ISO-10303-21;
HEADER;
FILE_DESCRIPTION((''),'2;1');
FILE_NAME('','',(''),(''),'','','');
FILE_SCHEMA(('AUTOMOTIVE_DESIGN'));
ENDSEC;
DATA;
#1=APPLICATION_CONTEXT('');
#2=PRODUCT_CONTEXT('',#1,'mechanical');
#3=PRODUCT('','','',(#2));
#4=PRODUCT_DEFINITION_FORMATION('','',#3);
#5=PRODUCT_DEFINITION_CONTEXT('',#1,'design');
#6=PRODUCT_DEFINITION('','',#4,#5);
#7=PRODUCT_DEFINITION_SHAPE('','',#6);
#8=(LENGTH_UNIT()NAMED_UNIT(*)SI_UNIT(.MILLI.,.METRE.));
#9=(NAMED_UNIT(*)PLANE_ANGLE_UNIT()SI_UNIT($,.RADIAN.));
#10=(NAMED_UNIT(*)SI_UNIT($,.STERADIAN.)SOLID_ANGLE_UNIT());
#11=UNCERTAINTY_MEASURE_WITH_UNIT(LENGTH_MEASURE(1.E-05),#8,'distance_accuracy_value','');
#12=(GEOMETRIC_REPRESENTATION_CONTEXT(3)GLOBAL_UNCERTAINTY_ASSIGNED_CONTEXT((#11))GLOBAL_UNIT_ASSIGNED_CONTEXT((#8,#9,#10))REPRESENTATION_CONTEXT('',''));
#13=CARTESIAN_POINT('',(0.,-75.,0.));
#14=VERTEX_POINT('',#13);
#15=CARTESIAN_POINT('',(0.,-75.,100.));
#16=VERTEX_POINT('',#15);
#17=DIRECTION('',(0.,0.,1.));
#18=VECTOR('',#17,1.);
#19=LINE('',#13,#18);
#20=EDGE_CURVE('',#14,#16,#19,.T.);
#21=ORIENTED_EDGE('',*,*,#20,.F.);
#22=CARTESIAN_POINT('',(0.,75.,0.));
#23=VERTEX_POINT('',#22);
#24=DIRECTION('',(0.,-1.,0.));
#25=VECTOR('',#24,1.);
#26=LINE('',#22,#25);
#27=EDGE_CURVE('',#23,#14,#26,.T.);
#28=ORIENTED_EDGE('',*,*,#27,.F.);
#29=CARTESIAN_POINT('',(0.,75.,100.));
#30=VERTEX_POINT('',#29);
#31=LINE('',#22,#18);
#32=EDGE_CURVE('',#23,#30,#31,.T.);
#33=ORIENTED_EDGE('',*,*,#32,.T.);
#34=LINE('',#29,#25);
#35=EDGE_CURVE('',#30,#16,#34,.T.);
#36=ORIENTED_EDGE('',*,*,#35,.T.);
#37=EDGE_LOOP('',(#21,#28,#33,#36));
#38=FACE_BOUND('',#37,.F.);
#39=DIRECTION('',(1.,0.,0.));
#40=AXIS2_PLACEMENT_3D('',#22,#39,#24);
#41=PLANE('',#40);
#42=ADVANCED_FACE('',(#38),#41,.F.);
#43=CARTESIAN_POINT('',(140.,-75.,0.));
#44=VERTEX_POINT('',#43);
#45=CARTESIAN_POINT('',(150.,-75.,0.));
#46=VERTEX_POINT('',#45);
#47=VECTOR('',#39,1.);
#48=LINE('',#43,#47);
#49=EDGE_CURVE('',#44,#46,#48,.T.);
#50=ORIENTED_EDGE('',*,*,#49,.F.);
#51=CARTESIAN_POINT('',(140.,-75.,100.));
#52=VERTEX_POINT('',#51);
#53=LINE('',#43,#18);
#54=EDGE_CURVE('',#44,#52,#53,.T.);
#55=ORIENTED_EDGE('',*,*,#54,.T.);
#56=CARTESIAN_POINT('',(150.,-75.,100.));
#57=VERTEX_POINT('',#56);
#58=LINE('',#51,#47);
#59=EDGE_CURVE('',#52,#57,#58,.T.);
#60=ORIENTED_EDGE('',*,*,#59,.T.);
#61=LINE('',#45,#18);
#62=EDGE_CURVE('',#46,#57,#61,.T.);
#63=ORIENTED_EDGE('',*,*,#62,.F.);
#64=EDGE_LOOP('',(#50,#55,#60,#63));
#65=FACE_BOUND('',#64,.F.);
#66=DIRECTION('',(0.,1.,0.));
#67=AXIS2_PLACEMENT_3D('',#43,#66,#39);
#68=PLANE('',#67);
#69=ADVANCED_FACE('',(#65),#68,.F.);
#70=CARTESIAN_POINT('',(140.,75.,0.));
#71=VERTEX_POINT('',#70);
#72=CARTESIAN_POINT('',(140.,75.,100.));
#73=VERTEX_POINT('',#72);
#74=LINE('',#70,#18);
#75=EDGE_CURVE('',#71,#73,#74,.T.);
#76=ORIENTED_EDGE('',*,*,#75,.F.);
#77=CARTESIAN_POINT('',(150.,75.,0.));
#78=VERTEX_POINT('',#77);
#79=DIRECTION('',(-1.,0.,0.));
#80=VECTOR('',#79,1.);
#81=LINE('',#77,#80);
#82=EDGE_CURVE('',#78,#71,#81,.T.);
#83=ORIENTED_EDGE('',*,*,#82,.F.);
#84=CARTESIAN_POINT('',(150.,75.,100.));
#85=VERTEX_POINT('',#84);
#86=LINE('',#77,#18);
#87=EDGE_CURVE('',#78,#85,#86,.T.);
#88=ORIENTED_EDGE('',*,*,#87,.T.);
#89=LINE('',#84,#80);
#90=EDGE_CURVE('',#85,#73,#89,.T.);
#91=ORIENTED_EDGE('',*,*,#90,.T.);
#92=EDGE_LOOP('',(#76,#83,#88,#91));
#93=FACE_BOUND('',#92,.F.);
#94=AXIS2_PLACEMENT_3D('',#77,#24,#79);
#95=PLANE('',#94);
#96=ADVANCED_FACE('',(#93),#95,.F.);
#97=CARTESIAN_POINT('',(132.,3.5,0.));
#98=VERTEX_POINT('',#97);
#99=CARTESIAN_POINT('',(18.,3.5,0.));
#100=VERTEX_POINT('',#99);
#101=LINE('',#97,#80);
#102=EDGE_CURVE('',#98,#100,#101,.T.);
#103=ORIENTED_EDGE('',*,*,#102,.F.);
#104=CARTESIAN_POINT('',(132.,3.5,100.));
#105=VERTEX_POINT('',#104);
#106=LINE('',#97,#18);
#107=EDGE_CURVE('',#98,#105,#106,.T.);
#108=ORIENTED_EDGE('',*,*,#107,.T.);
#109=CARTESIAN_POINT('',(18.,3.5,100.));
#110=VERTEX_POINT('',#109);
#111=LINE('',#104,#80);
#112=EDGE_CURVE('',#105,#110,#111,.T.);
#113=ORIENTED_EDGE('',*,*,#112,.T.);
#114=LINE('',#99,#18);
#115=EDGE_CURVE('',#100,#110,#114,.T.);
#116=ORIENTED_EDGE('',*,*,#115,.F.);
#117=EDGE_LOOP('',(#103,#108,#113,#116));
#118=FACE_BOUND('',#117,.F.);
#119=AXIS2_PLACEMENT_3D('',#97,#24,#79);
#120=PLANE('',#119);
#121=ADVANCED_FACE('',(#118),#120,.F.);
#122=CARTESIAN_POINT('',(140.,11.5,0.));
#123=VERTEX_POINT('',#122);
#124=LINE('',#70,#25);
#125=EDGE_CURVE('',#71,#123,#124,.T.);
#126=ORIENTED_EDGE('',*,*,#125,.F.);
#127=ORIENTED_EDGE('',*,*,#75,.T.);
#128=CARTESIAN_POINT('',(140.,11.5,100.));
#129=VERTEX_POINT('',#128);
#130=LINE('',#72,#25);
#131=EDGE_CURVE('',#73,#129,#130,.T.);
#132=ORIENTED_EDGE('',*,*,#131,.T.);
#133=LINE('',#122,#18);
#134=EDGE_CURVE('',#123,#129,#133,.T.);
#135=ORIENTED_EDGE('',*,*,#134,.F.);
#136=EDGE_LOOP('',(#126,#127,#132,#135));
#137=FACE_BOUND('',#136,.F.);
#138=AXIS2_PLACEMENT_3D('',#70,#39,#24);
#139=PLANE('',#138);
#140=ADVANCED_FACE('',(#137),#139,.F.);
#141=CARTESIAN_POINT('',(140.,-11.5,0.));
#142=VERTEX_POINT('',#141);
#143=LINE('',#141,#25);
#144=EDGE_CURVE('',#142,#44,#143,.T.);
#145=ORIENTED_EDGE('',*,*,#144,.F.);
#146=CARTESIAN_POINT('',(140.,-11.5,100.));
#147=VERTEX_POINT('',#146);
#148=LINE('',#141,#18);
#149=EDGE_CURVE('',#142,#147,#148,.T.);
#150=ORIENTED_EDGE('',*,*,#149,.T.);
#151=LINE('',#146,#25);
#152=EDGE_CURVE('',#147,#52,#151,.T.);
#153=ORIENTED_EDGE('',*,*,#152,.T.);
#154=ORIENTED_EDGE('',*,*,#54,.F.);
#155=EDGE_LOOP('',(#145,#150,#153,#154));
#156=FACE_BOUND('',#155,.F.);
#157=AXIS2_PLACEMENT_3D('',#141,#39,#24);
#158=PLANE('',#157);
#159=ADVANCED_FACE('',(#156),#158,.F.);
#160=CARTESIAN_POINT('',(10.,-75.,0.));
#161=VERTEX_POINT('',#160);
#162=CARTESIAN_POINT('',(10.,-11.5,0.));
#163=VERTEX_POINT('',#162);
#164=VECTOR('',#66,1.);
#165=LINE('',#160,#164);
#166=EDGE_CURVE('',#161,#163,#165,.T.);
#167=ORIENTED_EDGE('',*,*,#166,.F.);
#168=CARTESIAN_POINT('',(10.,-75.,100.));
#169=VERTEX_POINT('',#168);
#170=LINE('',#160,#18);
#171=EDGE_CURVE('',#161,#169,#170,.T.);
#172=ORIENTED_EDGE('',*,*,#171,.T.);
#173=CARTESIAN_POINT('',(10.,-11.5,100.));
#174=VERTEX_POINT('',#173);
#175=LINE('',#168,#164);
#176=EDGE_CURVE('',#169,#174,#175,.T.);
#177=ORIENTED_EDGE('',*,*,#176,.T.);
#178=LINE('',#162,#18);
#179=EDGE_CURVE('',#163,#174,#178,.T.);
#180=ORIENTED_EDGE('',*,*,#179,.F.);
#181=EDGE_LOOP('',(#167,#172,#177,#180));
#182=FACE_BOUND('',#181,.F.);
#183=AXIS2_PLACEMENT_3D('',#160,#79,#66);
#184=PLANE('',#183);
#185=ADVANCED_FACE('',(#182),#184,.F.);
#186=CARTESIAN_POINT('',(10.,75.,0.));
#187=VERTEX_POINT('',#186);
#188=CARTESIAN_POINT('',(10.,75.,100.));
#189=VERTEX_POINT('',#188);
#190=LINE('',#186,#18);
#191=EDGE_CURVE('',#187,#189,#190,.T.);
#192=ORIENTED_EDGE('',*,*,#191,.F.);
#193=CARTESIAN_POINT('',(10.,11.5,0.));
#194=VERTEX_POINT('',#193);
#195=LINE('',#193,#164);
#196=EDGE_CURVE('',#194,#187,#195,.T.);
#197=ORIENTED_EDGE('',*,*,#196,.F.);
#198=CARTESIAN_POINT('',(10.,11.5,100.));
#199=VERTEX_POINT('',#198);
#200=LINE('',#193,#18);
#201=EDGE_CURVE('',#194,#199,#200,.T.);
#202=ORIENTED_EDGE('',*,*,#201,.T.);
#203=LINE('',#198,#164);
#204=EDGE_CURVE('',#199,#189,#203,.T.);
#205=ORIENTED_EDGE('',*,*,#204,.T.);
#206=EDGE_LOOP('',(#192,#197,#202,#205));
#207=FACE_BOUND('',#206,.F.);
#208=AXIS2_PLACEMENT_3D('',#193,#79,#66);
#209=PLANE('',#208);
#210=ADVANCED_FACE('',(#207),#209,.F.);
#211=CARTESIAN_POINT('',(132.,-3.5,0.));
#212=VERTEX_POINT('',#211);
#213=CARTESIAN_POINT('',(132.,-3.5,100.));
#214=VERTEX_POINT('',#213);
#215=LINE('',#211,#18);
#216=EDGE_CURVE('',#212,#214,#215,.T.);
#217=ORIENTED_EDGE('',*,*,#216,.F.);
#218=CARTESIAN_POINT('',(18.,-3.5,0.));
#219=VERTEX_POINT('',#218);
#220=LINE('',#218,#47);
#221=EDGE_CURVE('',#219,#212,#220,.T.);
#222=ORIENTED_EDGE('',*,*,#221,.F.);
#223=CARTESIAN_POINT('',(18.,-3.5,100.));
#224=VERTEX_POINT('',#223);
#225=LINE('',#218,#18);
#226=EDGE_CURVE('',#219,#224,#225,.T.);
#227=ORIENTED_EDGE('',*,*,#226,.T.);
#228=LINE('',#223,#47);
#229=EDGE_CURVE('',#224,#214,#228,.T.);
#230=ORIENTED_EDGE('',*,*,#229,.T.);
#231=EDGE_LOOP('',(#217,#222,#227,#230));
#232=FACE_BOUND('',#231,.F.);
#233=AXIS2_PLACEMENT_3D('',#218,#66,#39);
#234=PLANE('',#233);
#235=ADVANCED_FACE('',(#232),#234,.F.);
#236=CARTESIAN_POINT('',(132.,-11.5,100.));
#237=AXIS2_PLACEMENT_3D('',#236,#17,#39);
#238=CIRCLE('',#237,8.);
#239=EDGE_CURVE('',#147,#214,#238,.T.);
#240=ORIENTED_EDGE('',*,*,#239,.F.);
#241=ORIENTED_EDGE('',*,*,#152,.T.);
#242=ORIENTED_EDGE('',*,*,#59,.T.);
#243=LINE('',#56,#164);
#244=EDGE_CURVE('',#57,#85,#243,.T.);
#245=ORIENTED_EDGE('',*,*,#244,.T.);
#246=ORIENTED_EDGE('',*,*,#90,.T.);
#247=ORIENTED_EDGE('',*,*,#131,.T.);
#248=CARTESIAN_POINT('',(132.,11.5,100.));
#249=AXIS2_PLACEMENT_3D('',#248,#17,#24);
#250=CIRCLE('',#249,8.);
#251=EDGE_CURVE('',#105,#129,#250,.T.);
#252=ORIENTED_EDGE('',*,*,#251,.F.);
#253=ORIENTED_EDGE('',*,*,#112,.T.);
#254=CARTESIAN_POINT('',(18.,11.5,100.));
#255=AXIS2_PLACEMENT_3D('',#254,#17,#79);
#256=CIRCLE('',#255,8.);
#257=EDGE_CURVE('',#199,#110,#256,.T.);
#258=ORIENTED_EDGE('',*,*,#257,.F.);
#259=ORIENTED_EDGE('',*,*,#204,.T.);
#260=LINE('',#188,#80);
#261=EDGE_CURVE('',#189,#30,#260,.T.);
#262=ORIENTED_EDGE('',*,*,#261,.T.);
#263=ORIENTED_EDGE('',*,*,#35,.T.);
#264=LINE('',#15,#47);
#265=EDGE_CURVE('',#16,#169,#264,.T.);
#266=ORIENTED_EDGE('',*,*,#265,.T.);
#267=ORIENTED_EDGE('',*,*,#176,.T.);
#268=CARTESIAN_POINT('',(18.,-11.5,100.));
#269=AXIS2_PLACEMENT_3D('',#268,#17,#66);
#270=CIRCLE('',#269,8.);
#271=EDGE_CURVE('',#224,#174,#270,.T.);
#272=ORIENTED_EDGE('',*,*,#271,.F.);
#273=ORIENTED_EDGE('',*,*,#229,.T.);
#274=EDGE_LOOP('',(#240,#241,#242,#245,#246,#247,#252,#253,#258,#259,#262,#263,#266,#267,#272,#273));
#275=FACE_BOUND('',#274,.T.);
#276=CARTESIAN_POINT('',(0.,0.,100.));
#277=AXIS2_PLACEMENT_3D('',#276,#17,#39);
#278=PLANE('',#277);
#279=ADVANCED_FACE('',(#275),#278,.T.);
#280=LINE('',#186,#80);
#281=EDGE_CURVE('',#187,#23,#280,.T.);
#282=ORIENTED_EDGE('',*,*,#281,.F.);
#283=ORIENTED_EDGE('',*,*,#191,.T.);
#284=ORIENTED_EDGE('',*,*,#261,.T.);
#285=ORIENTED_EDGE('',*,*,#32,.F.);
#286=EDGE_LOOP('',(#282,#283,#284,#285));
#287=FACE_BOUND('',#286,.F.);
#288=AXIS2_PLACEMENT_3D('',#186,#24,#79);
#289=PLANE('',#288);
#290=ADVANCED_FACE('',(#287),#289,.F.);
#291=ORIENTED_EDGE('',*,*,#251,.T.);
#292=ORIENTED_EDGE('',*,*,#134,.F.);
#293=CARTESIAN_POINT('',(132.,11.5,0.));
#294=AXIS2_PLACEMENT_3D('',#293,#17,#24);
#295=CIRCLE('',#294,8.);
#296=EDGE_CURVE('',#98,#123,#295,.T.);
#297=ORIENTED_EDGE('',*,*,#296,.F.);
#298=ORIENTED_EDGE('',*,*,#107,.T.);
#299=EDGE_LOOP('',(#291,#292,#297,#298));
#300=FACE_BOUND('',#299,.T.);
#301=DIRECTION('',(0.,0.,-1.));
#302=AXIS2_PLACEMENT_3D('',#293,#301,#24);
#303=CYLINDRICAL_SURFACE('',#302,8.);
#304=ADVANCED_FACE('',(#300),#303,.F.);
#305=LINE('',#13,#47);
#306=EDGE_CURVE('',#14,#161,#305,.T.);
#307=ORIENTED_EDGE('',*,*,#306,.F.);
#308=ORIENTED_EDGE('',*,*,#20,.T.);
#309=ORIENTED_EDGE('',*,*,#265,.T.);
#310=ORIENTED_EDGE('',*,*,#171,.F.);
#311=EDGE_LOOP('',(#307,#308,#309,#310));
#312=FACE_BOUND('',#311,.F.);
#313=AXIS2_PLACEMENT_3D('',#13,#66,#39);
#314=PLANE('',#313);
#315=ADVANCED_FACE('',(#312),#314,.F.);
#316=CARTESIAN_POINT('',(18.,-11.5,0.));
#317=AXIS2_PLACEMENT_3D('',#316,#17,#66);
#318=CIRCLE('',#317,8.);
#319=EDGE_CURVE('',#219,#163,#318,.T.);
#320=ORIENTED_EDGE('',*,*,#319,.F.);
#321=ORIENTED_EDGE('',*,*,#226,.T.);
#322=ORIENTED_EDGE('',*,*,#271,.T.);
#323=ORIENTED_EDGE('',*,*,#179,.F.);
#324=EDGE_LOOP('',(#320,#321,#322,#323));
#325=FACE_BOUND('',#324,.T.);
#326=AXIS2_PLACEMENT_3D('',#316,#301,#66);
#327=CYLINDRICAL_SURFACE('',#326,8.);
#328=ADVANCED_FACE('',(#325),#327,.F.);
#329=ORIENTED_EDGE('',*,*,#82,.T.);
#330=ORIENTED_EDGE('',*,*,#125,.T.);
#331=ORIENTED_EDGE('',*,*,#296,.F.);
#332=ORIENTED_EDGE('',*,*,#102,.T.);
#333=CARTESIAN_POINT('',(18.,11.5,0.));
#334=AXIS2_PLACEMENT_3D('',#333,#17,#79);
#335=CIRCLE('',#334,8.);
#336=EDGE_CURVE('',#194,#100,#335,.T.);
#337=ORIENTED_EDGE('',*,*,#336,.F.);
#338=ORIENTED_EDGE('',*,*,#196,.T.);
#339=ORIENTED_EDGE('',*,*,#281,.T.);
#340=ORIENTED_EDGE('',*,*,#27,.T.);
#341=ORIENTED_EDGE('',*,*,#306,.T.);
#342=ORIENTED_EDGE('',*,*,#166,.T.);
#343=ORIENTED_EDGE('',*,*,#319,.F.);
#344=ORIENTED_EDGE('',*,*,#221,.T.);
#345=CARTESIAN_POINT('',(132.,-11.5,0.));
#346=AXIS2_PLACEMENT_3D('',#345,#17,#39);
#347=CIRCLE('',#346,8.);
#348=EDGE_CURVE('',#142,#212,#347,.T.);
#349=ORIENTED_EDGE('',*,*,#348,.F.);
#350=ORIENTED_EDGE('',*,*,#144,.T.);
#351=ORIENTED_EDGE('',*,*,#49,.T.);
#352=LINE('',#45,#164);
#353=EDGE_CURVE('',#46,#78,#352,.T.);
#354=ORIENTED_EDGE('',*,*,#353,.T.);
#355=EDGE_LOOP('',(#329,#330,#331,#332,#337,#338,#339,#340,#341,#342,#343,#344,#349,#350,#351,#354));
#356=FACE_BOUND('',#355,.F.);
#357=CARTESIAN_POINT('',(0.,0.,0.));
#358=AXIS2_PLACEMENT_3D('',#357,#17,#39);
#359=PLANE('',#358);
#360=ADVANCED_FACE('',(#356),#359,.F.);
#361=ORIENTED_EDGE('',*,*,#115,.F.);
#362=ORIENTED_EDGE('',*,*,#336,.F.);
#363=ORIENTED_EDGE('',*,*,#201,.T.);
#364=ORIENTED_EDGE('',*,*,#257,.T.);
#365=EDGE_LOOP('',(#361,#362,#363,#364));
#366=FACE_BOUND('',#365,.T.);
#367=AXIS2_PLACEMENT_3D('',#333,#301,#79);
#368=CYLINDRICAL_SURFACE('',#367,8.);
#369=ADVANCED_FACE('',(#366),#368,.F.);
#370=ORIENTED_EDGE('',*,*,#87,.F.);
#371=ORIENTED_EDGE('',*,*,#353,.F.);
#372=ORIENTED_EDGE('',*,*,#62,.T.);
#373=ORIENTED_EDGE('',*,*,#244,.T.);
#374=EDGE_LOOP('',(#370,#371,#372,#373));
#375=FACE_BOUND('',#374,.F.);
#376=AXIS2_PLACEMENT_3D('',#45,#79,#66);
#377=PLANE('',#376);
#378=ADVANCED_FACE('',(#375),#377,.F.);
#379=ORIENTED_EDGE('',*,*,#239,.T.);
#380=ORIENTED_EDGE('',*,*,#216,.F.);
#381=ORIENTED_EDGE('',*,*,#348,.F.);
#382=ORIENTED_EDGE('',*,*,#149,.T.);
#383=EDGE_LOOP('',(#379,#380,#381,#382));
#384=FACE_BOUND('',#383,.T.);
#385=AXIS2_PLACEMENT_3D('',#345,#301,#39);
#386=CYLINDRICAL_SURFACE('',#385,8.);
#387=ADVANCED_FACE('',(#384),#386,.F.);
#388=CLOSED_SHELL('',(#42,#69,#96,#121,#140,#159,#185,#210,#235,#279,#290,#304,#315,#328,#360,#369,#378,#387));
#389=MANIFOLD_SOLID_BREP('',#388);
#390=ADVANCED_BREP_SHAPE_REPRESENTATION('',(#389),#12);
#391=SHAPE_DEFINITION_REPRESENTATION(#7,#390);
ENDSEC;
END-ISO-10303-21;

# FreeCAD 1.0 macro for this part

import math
import FreeCAD as App
import Part
import Sketcher
Q = App.Units.Quantity

doc = App.newDocument("Part")
body = doc.addObject("PartDesign::Body", "Body")

sketch1 = doc.addObject("Sketcher::SketchObject", "Sketch")
body.addObject(sketch1)
sketch1.AttachmentSupport = (doc.XY_Plane, [""])
sketch1.MapMode = "FlatFace"
sketch1.addGeometry([
    Part.LineSegment(App.Vector(10, 75, 0), App.Vector(0, 75, 0)),
    Part.LineSegment(App.Vector(0, 75, 0), App.Vector(0, -75, 0)),
    Part.LineSegment(App.Vector(0, -75, 0), App.Vector(10, -75, 0)),
    Part.LineSegment(App.Vector(10, -75, 0), App.Vector(10, -11.5, 0)),
    Part.ArcOfCircle(Part.Circle(App.Vector(18, -11.5, 0), App.Vector(0, 0, 1), 8), math.radians(90), math.radians(180)),
    Part.LineSegment(App.Vector(18, -3.5, 0), App.Vector(132, -3.5, 0)),
    Part.ArcOfCircle(Part.Circle(App.Vector(132, -11.5, 0), App.Vector(0, 0, 1), 8), math.radians(0), math.radians(90)),
    Part.LineSegment(App.Vector(140, -11.5, 0), App.Vector(140, -75, 0)),
    Part.LineSegment(App.Vector(140, -75, 0), App.Vector(150, -75, 0)),
    Part.LineSegment(App.Vector(150, -75, 0), App.Vector(150, 75, 0)),
    Part.LineSegment(App.Vector(150, 75, 0), App.Vector(140, 75, 0)),
    Part.LineSegment(App.Vector(140, 75, 0), App.Vector(140, 11.5, 0)),
    Part.ArcOfCircle(Part.Circle(App.Vector(132, 11.5, 0), App.Vector(0, 0, 1), 8), math.radians(-90), math.radians(0)),
    Part.LineSegment(App.Vector(132, 3.5, 0), App.Vector(18, 3.5, 0)),
    Part.ArcOfCircle(Part.Circle(App.Vector(18, 11.5, 0), App.Vector(0, 0, 1), 8), math.radians(180), math.radians(270)),
    Part.LineSegment(App.Vector(10, 11.5, 0), App.Vector(10, 75, 0)),
], False)
sketch1.addConstraint([
    Sketcher.Constraint("Coincident", 0, 2, 1, 1),
    Sketcher.Constraint("Coincident", 1, 2, 2, 1),
    Sketcher.Constraint("Coincident", 2, 2, 3, 1),
    Sketcher.Constraint("Tangent", 3, 2, 4, 2),
    Sketcher.Constraint("Tangent", 4, 1, 5, 1),
    Sketcher.Constraint("Tangent", 5, 2, 6, 2),
    Sketcher.Constraint("Tangent", 6, 1, 7, 1),
    Sketcher.Constraint("Coincident", 7, 2, 8, 1),
    Sketcher.Constraint("Coincident", 8, 2, 9, 1),
    Sketcher.Constraint("Coincident", 9, 2, 10, 1),
    Sketcher.Constraint("Coincident", 10, 2, 11, 1),
    Sketcher.Constraint("Tangent", 11, 2, 12, 2),
    Sketcher.Constraint("Tangent", 12, 1, 13, 1),
    Sketcher.Constraint("Tangent", 13, 2, 14, 2),
    Sketcher.Constraint("Tangent", 14, 1, 15, 1),
    Sketcher.Constraint("Coincident", 15, 2, 0, 1),
    Sketcher.Constraint("Horizontal", 0),
    Sketcher.Constraint("Vertical", 1),
    Sketcher.Constraint("Horizontal", 2),
    Sketcher.Constraint("Vertical", 3),
    Sketcher.Constraint("Horizontal", 5),
    Sketcher.Constraint("Vertical", 7),
    Sketcher.Constraint("Horizontal", 8),
    Sketcher.Constraint("Vertical", 9),
    Sketcher.Constraint("Horizontal", 10),
    Sketcher.Constraint("Vertical", 11),
    Sketcher.Constraint("Horizontal", 13),
    Sketcher.Constraint("Vertical", 15),
    Sketcher.Constraint("Equal", 4, 6),
    Sketcher.Constraint("Equal", 6, 12),
    Sketcher.Constraint("Equal", 12, 14),
    Sketcher.Constraint("Symmetric", 0, 2, 1, 2, -1, 1),
    Sketcher.Constraint("Symmetric", 6, 3, 12, 3, -1),
    Sketcher.Constraint("Horizontal", 2, 2, 7, 2),
    Sketcher.Constraint("Horizontal", 0, 2, 9, 2),
    Sketcher.Constraint("Vertical", 4, 3, 14, 3),
    Sketcher.Constraint("Equal", 2, 8),
    Sketcher.Constraint("DistanceY", 3, 1, 3, 2, Q("2.5 in")),
    Sketcher.Constraint("Radius", 4, Q("8 mm")),
    Sketcher.Constraint("DistanceX", 0, 2, 0, 1, Q("0.3937 in")),
    Sketcher.Constraint("DistanceX", 5, 1, 5, 2, Q("4.4882 in")),
    Sketcher.Constraint("DistanceY", 1, 2, 1, 1, Q("5.9055 in")),
])
pad1 = doc.addObject("PartDesign::Pad", "Pad")
body.addObject(pad1)
pad1.Profile = sketch1
pad1.Length = Q("3.9370079 in")

doc.recompute()
